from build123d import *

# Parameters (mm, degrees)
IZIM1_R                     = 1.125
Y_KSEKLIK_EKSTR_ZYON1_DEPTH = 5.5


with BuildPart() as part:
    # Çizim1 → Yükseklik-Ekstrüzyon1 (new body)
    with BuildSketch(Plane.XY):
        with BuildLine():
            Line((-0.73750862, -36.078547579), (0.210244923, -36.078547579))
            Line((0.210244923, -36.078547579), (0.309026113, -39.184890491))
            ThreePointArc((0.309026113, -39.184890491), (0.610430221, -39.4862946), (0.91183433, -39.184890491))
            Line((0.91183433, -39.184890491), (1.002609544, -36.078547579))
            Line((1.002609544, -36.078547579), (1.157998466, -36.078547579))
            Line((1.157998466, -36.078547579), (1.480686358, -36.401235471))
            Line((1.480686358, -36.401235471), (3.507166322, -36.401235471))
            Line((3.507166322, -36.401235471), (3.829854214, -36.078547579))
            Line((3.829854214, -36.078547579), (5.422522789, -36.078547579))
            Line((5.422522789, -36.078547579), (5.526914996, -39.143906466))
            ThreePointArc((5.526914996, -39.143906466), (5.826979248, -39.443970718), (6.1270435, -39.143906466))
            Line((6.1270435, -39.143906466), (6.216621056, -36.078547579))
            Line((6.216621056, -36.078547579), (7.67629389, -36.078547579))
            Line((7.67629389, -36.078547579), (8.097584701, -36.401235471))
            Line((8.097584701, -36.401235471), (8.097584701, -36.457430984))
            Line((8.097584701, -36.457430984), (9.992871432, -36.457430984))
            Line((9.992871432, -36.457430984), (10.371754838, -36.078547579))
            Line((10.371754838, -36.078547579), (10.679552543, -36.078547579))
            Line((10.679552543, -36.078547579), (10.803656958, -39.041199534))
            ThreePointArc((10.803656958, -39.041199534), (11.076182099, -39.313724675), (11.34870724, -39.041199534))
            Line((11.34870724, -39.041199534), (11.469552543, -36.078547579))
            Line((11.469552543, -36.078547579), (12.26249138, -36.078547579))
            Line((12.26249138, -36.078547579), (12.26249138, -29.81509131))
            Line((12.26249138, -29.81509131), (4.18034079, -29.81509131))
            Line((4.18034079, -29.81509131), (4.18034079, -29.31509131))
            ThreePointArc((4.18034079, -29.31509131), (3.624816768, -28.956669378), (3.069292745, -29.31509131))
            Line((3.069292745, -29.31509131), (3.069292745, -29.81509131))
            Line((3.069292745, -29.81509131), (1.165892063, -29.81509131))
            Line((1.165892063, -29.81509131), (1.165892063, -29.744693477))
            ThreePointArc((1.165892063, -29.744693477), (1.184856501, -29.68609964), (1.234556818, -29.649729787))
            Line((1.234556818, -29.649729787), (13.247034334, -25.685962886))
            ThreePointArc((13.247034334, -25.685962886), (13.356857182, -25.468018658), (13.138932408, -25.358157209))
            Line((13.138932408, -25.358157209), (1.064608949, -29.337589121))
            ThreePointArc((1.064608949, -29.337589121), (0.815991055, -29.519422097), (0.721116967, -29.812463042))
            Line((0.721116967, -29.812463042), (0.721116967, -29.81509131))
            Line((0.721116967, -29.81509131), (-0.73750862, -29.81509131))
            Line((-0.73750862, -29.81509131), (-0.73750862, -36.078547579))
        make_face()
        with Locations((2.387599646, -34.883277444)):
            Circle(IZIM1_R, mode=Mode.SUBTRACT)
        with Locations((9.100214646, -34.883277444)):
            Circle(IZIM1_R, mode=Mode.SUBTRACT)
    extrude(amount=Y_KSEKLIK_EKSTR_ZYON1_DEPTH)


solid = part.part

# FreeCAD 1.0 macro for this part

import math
import FreeCAD as App
import Part
import Sketcher
from FreeCAD import Vector

doc = App.newDocument("Part")
body = doc.addObject("PartDesign::Body", "Body")

sketch1 = doc.addObject("Sketcher::SketchObject", "Sketch")
body.addObject(sketch1)
sketch1.AttachmentSupport = (doc.XY_Plane, [""])
sketch1.MapMode = "FlatFace"
sketch1.addGeometry(Part.LineSegment(Vector(-0.737509, -36.078548, 0), Vector(0.210245, -36.078548, 0)), False)
sketch1.addGeometry(Part.LineSegment(Vector(0.210245, -36.078548, 0), Vector(0.309026, -39.18489, 0)), False)
sketch1.addGeometry(Part.ArcOfCircle(Part.Circle(Vector(0.61043, -39.18489, 0), Vector(0, 0, 1), 0.301404), math.radians(180), math.radians(360)), False)
sketch1.addGeometry(Part.LineSegment(Vector(0.911834, -39.18489, 0), Vector(1.00261, -36.078548, 0)), False)
sketch1.addGeometry(Part.LineSegment(Vector(1.00261, -36.078548, 0), Vector(1.157998, -36.078548, 0)), False)
sketch1.addGeometry(Part.LineSegment(Vector(1.157998, -36.078548, 0), Vector(1.480686, -36.401235, 0)), False)
sketch1.addGeometry(Part.LineSegment(Vector(1.480686, -36.401235, 0), Vector(3.507166, -36.401235, 0)), False)
sketch1.addGeometry(Part.LineSegment(Vector(3.507166, -36.401235, 0), Vector(3.829854, -36.078548, 0)), False)
sketch1.addGeometry(Part.LineSegment(Vector(3.829854, -36.078548, 0), Vector(5.422523, -36.078548, 0)), False)
sketch1.addGeometry(Part.LineSegment(Vector(5.422523, -36.078548, 0), Vector(5.526915, -39.143906, 0)), False)
sketch1.addGeometry(Part.ArcOfCircle(Part.Circle(Vector(5.826979, -39.143906, 0), Vector(0, 0, 1), 0.300064), math.radians(180), math.radians(360)), False)
sketch1.addGeometry(Part.LineSegment(Vector(6.127044, -39.143906, 0), Vector(6.216621, -36.078548, 0)), False)
sketch1.addGeometry(Part.LineSegment(Vector(6.216621, -36.078548, 0), Vector(7.676294, -36.078548, 0)), False)
sketch1.addGeometry(Part.LineSegment(Vector(7.676294, -36.078548, 0), Vector(8.097585, -36.401235, 0)), False)
sketch1.addGeometry(Part.LineSegment(Vector(8.097585, -36.401235, 0), Vector(8.097585, -36.457431, 0)), False)
sketch1.addGeometry(Part.LineSegment(Vector(8.097585, -36.457431, 0), Vector(9.992871, -36.457431, 0)), False)
sketch1.addGeometry(Part.LineSegment(Vector(9.992871, -36.457431, 0), Vector(10.371755, -36.078548, 0)), False)
sketch1.addGeometry(Part.LineSegment(Vector(10.371755, -36.078548, 0), Vector(10.679553, -36.078548, 0)), False)
sketch1.addGeometry(Part.LineSegment(Vector(10.679553, -36.078548, 0), Vector(10.803657, -39.0412, 0)), False)
sketch1.addGeometry(Part.ArcOfCircle(Part.Circle(Vector(11.076182, -39.0412, 0), Vector(0, 0, 1), 0.272525), math.radians(180), math.radians(360)), False)
sketch1.addGeometry(Part.LineSegment(Vector(11.348707, -39.0412, 0), Vector(11.469553, -36.078548, 0)), False)
sketch1.addGeometry(Part.LineSegment(Vector(11.469553, -36.078548, 0), Vector(12.262491, -36.078548, 0)), False)
sketch1.addGeometry(Part.LineSegment(Vector(12.262491, -36.078548, 0), Vector(12.262491, -29.815091, 0)), False)
sketch1.addGeometry(Part.LineSegment(Vector(12.262491, -29.815091, 0), Vector(4.180341, -29.815091, 0)), False)
sketch1.addGeometry(Part.LineSegment(Vector(4.180341, -29.815091, 0), Vector(4.180341, -29.315091, 0)), False)
sketch1.addGeometry(Part.ArcOfCircle(Part.Circle(Vector(3.624817, -29.566388, 0), Vector(0, 0, 1), 0.609719), math.radians(24.3401), math.radians(155.6599)), False)
sketch1.addGeometry(Part.LineSegment(Vector(3.069293, -29.315091, 0), Vector(3.069293, -29.815091, 0)), False)
sketch1.addGeometry(Part.LineSegment(Vector(3.069293, -29.815091, 0), Vector(1.165892, -29.815091, 0)), False)
sketch1.addGeometry(Part.LineSegment(Vector(1.165892, -29.815091, 0), Vector(1.165892, -29.744693, 0)), False)
sketch1.addGeometry(Part.ArcOfCircle(Part.Circle(Vector(1.265892, -29.744693, 0), Vector(0, 0, 1), 0.1), math.radians(108.261381), math.radians(180.000001)), False)
sketch1.addGeometry(Part.LineSegment(Vector(1.234557, -29.64973, 0), Vector(13.247034, -25.685963, 0)), False)
sketch1.addGeometry(Part.ArcOfCircle(Part.Circle(Vector(13.192954, -25.52207, 0), Vector(0, 0, 1), 0.172585), math.radians(-71.738618), math.radians(108.241085)), False)
sketch1.addGeometry(Part.LineSegment(Vector(13.138932, -25.358157, 0), Vector(1.064609, -29.337589, 0)), False)
sketch1.addGeometry(Part.ArcOfCircle(Part.Circle(Vector(1.221117, -29.812463, 0), Vector(0, 0, 1), 0.5), math.radians(108.241085), math.radians(180)), False)
sketch1.addGeometry(Part.LineSegment(Vector(0.721117, -29.812463, 0), Vector(0.721117, -29.815091, 0)), False)
sketch1.addGeometry(Part.LineSegment(Vector(0.721117, -29.815091, 0), Vector(-0.737509, -29.815091, 0)), False)
sketch1.addGeometry(Part.LineSegment(Vector(-0.737509, -29.815091, 0), Vector(-0.737509, -36.078548, 0)), False)
sketch1.addGeometry(Part.Circle(Vector(2.3876, -34.883277, 0), Vector(0, 0, 1), 1.125), False)
sketch1.addGeometry(Part.Circle(Vector(9.100215, -34.883277, 0), Vector(0, 0, 1), 1.125), False)
sketch1.addConstraint(Sketcher.Constraint("Coincident", 0, 2, 1, 1))
sketch1.addConstraint(Sketcher.Constraint("Coincident", 1, 2, 2, 1))
sketch1.addConstraint(Sketcher.Constraint("Coincident", 2, 2, 3, 1))
sketch1.addConstraint(Sketcher.Constraint("Coincident", 3, 2, 4, 1))
sketch1.addConstraint(Sketcher.Constraint("Coincident", 4, 2, 5, 1))
sketch1.addConstraint(Sketcher.Constraint("Coincident", 5, 2, 6, 1))
sketch1.addConstraint(Sketcher.Constraint("Coincident", 6, 2, 7, 1))
sketch1.addConstraint(Sketcher.Constraint("Coincident", 7, 2, 8, 1))
sketch1.addConstraint(Sketcher.Constraint("Coincident", 8, 2, 9, 1))
sketch1.addConstraint(Sketcher.Constraint("Coincident", 9, 2, 10, 1))
sketch1.addConstraint(Sketcher.Constraint("Coincident", 10, 2, 11, 1))
sketch1.addConstraint(Sketcher.Constraint("Coincident", 11, 2, 12, 1))
sketch1.addConstraint(Sketcher.Constraint("Coincident", 12, 2, 13, 1))
sketch1.addConstraint(Sketcher.Constraint("Coincident", 13, 2, 14, 1))
sketch1.addConstraint(Sketcher.Constraint("Coincident", 14, 2, 15, 1))
sketch1.addConstraint(Sketcher.Constraint("Coincident", 15, 2, 16, 1))
sketch1.addConstraint(Sketcher.Constraint("Coincident", 16, 2, 17, 1))
sketch1.addConstraint(Sketcher.Constraint("Coincident", 17, 2, 18, 1))
sketch1.addConstraint(Sketcher.Constraint("Coincident", 18, 2, 19, 1))
sketch1.addConstraint(Sketcher.Constraint("Coincident", 19, 2, 20, 1))
sketch1.addConstraint(Sketcher.Constraint("Coincident", 20, 2, 21, 1))
sketch1.addConstraint(Sketcher.Constraint("Coincident", 21, 2, 22, 1))
sketch1.addConstraint(Sketcher.Constraint("Coincident", 22, 2, 23, 1))
sketch1.addConstraint(Sketcher.Constraint("Coincident", 23, 2, 24, 1))
sketch1.addConstraint(Sketcher.Constraint("Coincident", 24, 2, 25, 1))
sketch1.addConstraint(Sketcher.Constraint("Coincident", 25, 2, 26, 1))
sketch1.addConstraint(Sketcher.Constraint("Coincident", 26, 2, 27, 1))
sketch1.addConstraint(Sketcher.Constraint("Coincident", 27, 2, 28, 1))
sketch1.addConstraint(Sketcher.Constraint("Coincident", 28, 2, 29, 2))
sketch1.addConstraint(Sketcher.Constraint("Coincident", 29, 1, 30, 1))
sketch1.addConstraint(Sketcher.Constraint("Coincident", 30, 2, 31, 1))
sketch1.addConstraint(Sketcher.Constraint("Coincident", 31, 2, 32, 1))
sketch1.addConstraint(Sketcher.Constraint("Coincident", 32, 2, 33, 1))
sketch1.addConstraint(Sketcher.Constraint("Coincident", 33, 2, 34, 1))
sketch1.addConstraint(Sketcher.Constraint("Coincident", 34, 2, 35, 1))
sketch1.addConstraint(Sketcher.Constraint("Coincident", 35, 2, 36, 1))
sketch1.addConstraint(Sketcher.Constraint("Coincident", 36, 2, 0, 1))
sketch1.addConstraint(Sketcher.Constraint("Horizontal", 0))
sketch1.addConstraint(Sketcher.Constraint("Horizontal", 4))
sketch1.addConstraint(Sketcher.Constraint("Horizontal", 6))
sketch1.addConstraint(Sketcher.Constraint("Horizontal", 8))
sketch1.addConstraint(Sketcher.Constraint("Horizontal", 12))
sketch1.addConstraint(Sketcher.Constraint("Vertical", 14))
sketch1.addConstraint(Sketcher.Constraint("Horizontal", 15))
sketch1.addConstraint(Sketcher.Constraint("Horizontal", 17))
sketch1.addConstraint(Sketcher.Constraint("Horizontal", 21))
sketch1.addConstraint(Sketcher.Constraint("Vertical", 22))
sketch1.addConstraint(Sketcher.Constraint("Horizontal", 23))
sketch1.addConstraint(Sketcher.Constraint("Vertical", 24))
sketch1.addConstraint(Sketcher.Constraint("Vertical", 26))
sketch1.addConstraint(Sketcher.Constraint("Horizontal", 27))
sketch1.addConstraint(Sketcher.Constraint("Vertical", 28))
sketch1.addConstraint(Sketcher.Constraint("Vertical", 34))
sketch1.addConstraint(Sketcher.Constraint("Horizontal", 35))
sketch1.addConstraint(Sketcher.Constraint("Vertical", 36))
sketch1.addConstraint(Sketcher.Constraint("Radius", 29, 0.1))
sketch1.addConstraint(Sketcher.Constraint("Radius", 33, 0.5))
sketch1.addConstraint(Sketcher.Constraint("Diameter", 37, 2.25))
sketch1.addConstraint(Sketcher.Constraint("Diameter", 38, 2.25))
sketch1.addConstraint(Sketcher.Constraint("DistanceY", 24, 1, 24, 2, 0.5))
sketch1.addConstraint(Sketcher.Constraint("DistanceY", 26, 2, 26, 1, 0.5))
sketch1.addConstraint(Sketcher.Constraint("DistanceY", 23, 2, 25, 2, 0.5))
sketch1.addConstraint(Sketcher.Constraint("Radius", 25, 0.609719))
sketch1.addConstraint(Sketcher.Constraint("DistanceX", 17, 2, 20, 2, 0.79))
sketch1.addConstraint(Sketcher.Constraint("DistanceX", 27, 2, 27, 1, 1.903401))
sketch1.addConstraint(Sketcher.Constraint("DistanceX", -1, 1, 4, 2, 1.157998))
sketch1.addConstraint(Sketcher.Constraint("Radius", 2, 0.301404))
sketch1.addConstraint(Sketcher.Constraint("Radius", 10, 0.300064))
sketch1.addConstraint(Sketcher.Constraint("Radius", 19, 0.272525))
sketch1.addConstraint(Sketcher.Constraint("Radius", 31, 0.172585))
sketch1.addConstraint(Sketcher.Constraint("DistanceX", 4, 1, 4, 2, 0.155389))
sketch1.addConstraint(Sketcher.Constraint("DistanceX", 6, 1, 6, 2, 2.02648))
sketch1.addConstraint(Sketcher.Constraint("DistanceX", 8, 1, 8, 2, 1.592669))
sketch1.addConstraint(Sketcher.Constraint("DistanceX", 21, 1, 21, 2, 0.792939))
sketch1.addConstraint(Sketcher.Constraint("DistanceX", 23, 2, 23, 1, 8.082151))
sketch1.addConstraint(Sketcher.Constraint("DistanceY", 34, 2, 34, 1, 0.002628))
sketch1.addConstraint(Sketcher.Constraint("DistanceY", 19, 3, -1, 1, 39.0412))
sketch1.addConstraint(Sketcher.Constraint("DistanceX", -1, 1, 37, 3, 2.3876))
sketch1.addConstraint(Sketcher.Constraint("DistanceY", 18, 2, -1, 1, 39.0412))
sketch1.addConstraint(Sketcher.Constraint("DistanceY", 19, 2, -1, 1, 39.0412))
sketch1.addConstraint(Sketcher.Constraint("DistanceX", 33, 3, 25, 3, 2.4037))
sketch1.addConstraint(Sketcher.Constraint("DistanceX", 8, 2, 11, 2, 0.794098))
sketch1.addConstraint(Sketcher.Constraint("DistanceX", 31, 2, 30, 2, 0.108102))
sketch1.addConstraint(Sketcher.Constraint("DistanceX", 35, 2, 27, 2, 1.903401))
sketch1.addConstraint(Sketcher.Constraint("Distance", 3, 3.107669))
sketch1.addConstraint(Sketcher.Constraint("Distance", 5, 0.45635))
sketch1.addConstraint(Sketcher.Constraint("Distance", 7, 0.45635))
sketch1.addConstraint(Sketcher.Constraint("Distance", 18, 2.96525))
sketch1.addConstraint(Sketcher.Constraint("Distance", 32, 12.713189))
sketch1.addConstraint(Sketcher.Constraint("DistanceX", 0, 1, 0, 2, 0.947754))
sketch1.addConstraint(Sketcher.Constraint("DistanceX", 12, 1, 12, 2, 1.459673))
sketch1.addConstraint(Sketcher.Constraint("DistanceX", 15, 1, 15, 2, 1.895287))
sketch1.addConstraint(Sketcher.Constraint("DistanceX", 17, 1, 17, 2, 0.307798))
sketch1.addConstraint(Sketcher.Constraint("DistanceX", 35, 2, 35, 1, 1.458626))
sketch1.addConstraint(Sketcher.Constraint("DistanceY", 14, 2, 14, 1, 0.056196))
sketch1.addConstraint(Sketcher.Constraint("DistanceY", 22, 1, 22, 2, 6.263456))
sketch1.addConstraint(Sketcher.Constraint("DistanceY", 28, 1, 28, 2, 0.070398))
sketch1.addConstraint(Sketcher.Constraint("DistanceY", 36, 2, 36, 1, 6.263456))
sketch1.addConstraint(Sketcher.Constraint("DistanceX", -1, 1, 2, 3, 0.61043))
sketch1.addConstraint(Sketcher.Constraint("DistanceY", 2, 3, -1, 1, 39.18489))
sketch1.addConstraint(Sketcher.Constraint("DistanceX", -1, 1, 10, 3, 5.826979))
sketch1.addConstraint(Sketcher.Constraint("DistanceY", 25, 3, -1, 1, 29.566388))
sketch1.addConstraint(Sketcher.Constraint("DistanceY", 31, 3, -1, 1, 25.52207))
sketch1.addConstraint(Sketcher.Constraint("DistanceY", 1, 2, -1, 1, 39.18489))
sketch1.addConstraint(Sketcher.Constraint("DistanceY", 2, 2, -1, 1, 39.18489))
sketch1.addConstraint(Sketcher.Constraint("DistanceX", -1, 1, 11, 2, 6.216621))
sketch1.addConstraint(Sketcher.Constraint("DistanceY", 14, 2, -1, 1, 36.457431))
sketch1.addConstraint(Sketcher.Constraint("DistanceX", -1, 1, 15, 2, 9.992871))
sketch1.addConstraint(Sketcher.Constraint("DistanceX", -1, 1, 21, 2, 12.262491))
sketch1.addConstraint(Sketcher.Constraint("DistanceY", 29, 1, -1, 1, 29.64973))
sketch1.addConstraint(Sketcher.Constraint("DistanceX", -1, 1, 32, 2, 1.064609))
sketch1.addConstraint(Sketcher.Constraint("DistanceY", 32, 2, -1, 1, 29.337589))
sketch1.addConstraint(Sketcher.Constraint("DistanceY", 34, 2, -1, 1, 29.815091))
sketch1.addConstraint(Sketcher.Constraint("DistanceX", 2, 3, 19, 3, 10.465752))
sketch1.addConstraint(Sketcher.Constraint("DistanceY", 10, 3, 25, 3, 9.577518))
sketch1.addConstraint(Sketcher.Constraint("DistanceY", 33, 3, 29, 3, 0.06777))
sketch1.addConstraint(Sketcher.Constraint("DistanceY", 37, 3, 25, 3, 5.316889))
sketch1.addConstraint(Sketcher.Constraint("DistanceY", 10, 3, 38, 3, 4.260629))
sketch1.addConstraint(Sketcher.Constraint("DistanceX", 0, 2, 5, 2, 1.270441))
sketch1.addConstraint(Sketcher.Constraint("DistanceX", 8, 2, 38, 3, 3.677692))
sketch1.addConstraint(Sketcher.Constraint("DistanceY", 9, 2, 8, 2, 3.065359))
sketch1.addConstraint(Sketcher.Constraint("DistanceY", 10, 2, 8, 2, 3.065359))
sketch1.addConstraint(Sketcher.Constraint("DistanceY", 10, 2, 11, 2, 3.065359))
sketch1.addConstraint(Sketcher.Constraint("DistanceX", 31, 3, 30, 2, 0.05408))
pad1 = doc.addObject("PartDesign::Pad", "Pad")
body.addObject(pad1)
pad1.Profile = sketch1
pad1.Length = 5.5

doc.recompute()
